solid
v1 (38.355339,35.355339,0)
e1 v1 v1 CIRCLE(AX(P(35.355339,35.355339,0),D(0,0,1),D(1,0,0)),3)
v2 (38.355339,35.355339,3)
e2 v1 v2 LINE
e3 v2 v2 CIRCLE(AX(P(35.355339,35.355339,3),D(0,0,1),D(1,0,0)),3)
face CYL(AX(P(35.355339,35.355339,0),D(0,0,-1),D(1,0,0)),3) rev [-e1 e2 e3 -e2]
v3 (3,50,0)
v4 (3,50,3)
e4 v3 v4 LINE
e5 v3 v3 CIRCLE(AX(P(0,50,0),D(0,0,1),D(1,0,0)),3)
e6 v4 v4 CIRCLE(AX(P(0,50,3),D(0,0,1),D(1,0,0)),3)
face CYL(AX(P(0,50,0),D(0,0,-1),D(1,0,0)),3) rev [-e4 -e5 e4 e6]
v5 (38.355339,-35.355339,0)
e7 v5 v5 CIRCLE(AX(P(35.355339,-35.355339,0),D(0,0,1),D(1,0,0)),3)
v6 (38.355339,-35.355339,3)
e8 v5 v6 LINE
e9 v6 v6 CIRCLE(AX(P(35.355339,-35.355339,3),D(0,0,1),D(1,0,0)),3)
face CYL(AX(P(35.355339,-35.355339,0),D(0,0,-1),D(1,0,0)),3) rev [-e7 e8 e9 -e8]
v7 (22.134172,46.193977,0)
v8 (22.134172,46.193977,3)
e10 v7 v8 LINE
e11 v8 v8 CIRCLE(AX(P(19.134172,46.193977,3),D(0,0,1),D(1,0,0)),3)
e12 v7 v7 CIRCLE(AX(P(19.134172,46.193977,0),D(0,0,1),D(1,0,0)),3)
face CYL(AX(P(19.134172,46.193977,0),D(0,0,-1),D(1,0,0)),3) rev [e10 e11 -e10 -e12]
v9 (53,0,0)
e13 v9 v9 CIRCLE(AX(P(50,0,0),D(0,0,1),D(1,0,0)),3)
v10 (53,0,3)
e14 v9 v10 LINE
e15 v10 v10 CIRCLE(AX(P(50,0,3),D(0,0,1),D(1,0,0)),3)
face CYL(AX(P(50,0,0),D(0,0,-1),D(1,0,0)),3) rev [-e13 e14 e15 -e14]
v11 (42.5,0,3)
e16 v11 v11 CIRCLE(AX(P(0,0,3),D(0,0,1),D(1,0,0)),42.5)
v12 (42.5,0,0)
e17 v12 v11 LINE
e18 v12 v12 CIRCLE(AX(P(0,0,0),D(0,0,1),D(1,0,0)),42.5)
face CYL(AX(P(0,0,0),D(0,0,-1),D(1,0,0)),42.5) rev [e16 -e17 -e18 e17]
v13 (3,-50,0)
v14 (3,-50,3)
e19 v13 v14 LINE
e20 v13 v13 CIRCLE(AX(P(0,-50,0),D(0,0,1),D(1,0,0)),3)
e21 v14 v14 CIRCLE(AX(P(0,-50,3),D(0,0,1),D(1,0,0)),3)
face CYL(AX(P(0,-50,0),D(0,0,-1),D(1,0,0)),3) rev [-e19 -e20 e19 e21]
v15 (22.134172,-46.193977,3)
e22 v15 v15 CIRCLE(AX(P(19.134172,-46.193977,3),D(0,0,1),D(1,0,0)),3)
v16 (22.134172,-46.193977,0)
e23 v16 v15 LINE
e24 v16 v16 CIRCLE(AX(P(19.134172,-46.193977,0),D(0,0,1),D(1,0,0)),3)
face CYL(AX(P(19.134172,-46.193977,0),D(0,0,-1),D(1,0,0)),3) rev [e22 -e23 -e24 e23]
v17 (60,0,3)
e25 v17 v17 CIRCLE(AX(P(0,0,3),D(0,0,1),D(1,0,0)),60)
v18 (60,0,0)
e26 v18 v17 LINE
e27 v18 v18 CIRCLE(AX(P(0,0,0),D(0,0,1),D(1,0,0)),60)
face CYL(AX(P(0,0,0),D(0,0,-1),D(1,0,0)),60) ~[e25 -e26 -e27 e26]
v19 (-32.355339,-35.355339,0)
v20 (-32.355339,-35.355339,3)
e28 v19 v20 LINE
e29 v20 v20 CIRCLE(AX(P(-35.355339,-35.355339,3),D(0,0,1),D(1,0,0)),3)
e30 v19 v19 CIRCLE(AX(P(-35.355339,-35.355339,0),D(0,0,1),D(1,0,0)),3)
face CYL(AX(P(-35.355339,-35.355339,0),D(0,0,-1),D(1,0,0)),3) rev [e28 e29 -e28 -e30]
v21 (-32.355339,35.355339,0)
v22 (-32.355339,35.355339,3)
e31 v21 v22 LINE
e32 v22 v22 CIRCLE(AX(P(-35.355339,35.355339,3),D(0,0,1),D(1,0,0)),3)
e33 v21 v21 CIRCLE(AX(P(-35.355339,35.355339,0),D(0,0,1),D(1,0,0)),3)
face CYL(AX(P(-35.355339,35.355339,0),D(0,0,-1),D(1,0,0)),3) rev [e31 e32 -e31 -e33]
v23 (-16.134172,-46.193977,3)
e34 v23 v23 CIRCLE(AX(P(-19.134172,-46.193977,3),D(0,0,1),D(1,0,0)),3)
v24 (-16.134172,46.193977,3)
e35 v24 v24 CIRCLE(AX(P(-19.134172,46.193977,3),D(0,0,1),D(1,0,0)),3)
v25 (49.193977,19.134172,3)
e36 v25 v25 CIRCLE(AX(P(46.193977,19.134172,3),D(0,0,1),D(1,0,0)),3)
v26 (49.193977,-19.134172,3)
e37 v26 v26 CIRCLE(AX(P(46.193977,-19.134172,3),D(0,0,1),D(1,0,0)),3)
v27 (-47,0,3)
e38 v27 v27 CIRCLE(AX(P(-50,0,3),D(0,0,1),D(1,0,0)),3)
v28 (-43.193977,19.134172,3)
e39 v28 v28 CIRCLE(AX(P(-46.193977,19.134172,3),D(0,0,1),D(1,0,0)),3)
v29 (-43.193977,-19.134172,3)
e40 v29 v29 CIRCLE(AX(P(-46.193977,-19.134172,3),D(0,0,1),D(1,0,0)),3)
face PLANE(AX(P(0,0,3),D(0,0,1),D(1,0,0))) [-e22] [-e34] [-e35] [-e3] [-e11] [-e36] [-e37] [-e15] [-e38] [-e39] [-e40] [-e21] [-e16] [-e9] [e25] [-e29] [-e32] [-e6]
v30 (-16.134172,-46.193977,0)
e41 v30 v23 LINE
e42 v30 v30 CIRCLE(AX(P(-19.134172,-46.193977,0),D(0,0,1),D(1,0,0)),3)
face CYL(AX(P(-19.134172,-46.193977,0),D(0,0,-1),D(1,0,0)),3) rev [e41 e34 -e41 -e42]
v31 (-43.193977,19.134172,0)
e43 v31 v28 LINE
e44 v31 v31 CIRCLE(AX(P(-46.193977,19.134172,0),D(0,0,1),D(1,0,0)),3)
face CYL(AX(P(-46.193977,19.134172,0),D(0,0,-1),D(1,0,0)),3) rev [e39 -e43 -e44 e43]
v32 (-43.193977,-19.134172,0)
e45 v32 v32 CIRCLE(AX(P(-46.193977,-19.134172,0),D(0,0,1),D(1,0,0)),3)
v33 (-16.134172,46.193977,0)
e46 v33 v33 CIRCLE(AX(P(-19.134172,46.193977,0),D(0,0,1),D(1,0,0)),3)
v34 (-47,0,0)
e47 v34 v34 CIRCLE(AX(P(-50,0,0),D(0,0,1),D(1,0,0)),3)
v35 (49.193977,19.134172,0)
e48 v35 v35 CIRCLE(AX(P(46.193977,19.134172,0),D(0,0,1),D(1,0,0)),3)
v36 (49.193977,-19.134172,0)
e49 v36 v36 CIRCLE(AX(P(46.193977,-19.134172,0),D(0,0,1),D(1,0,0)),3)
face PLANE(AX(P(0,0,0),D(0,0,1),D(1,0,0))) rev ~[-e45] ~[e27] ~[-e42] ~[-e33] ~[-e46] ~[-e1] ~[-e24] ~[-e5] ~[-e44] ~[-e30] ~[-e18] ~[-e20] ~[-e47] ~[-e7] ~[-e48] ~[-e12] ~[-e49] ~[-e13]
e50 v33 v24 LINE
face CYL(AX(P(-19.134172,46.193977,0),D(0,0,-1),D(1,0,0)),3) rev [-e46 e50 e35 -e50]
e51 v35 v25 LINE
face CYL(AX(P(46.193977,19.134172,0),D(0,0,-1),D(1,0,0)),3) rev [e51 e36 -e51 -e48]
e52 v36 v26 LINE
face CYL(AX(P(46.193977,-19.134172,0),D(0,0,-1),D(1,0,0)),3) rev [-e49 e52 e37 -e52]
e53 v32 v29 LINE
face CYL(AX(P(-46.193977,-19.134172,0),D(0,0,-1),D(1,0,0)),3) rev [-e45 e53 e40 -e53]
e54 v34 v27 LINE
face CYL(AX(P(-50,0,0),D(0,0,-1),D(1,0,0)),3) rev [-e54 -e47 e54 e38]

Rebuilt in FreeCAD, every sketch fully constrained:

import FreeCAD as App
import Part
import Sketcher

doc = App.newDocument("Part")
body = doc.addObject("PartDesign::Body", "Body")

sketch1 = doc.addObject("Sketcher::SketchObject", "Sketch")
body.addObject(sketch1)
sketch1.AttachmentSupport = (doc.XY_Plane, [""])
sketch1.MapMode = "FlatFace"
sketch1.addGeometry(Part.Circle(App.Vector(0, 0, 0), App.Vector(0, 0, 1), 60), False)
sketch1.addGeometry(Part.Circle(App.Vector(-35.4, -35.4, 0), App.Vector(0, 0, 1), 3), False)
sketch1.addGeometry(Part.Circle(App.Vector(-19.1, -46.2, 0), App.Vector(0, 0, 1), 3), False)
sketch1.addGeometry(Part.Circle(App.Vector(-46.2, -19.1, 0), App.Vector(0, 0, 1), 3), False)
sketch1.addGeometry(Part.Circle(App.Vector(0, -50, 0), App.Vector(0, 0, 1), 3), False)
sketch1.addGeometry(Part.Circle(App.Vector(19.1, -46.2, 0), App.Vector(0, 0, 1), 3), False)
sketch1.addGeometry(Part.Circle(App.Vector(35.4, -35.4, 0), App.Vector(0, 0, 1), 3), False)
sketch1.addGeometry(Part.Circle(App.Vector(46.2, -19.1, 0), App.Vector(0, 0, 1), 3), False)
sketch1.addGeometry(Part.Circle(App.Vector(-50, 0, 0), App.Vector(0, 0, 1), 3), False)
sketch1.addGeometry(Part.Circle(App.Vector(-46.2, 19.1, 0), App.Vector(0, 0, 1), 3), False)
sketch1.addGeometry(Part.Circle(App.Vector(-35.4, 35.4, 0), App.Vector(0, 0, 1), 3), False)
sketch1.addGeometry(Part.Circle(App.Vector(-19.1, 46.2, 0), App.Vector(0, 0, 1), 3), False)
sketch1.addGeometry(Part.Circle(App.Vector(0, 0, 0), App.Vector(0, 0, 1), 42.5), False)
sketch1.addGeometry(Part.Circle(App.Vector(50, 0, 0), App.Vector(0, 0, 1), 3), False)
sketch1.addGeometry(Part.Circle(App.Vector(46.2, 19.1, 0), App.Vector(0, 0, 1), 3), False)
sketch1.addGeometry(Part.Circle(App.Vector(0, 50, 0), App.Vector(0, 0, 1), 3), False)
sketch1.addGeometry(Part.Circle(App.Vector(19.1, 46.2, 0), App.Vector(0, 0, 1), 3), False)
sketch1.addGeometry(Part.Circle(App.Vector(35.4, 35.4, 0), App.Vector(0, 0, 1), 3), False)
sketch1.addConstraint(Sketcher.Constraint("Coincident", 0, 3, -1, 1))
sketch1.addConstraint(Sketcher.Constraint("Coincident", 12, 3, -1, 1))
sketch1.addConstraint(Sketcher.Constraint("Equal", 1, 2))
sketch1.addConstraint(Sketcher.Constraint("Equal", 2, 3))
sketch1.addConstraint(Sketcher.Constraint("Equal", 3, 4))
sketch1.addConstraint(Sketcher.Constraint("Equal", 4, 5))
sketch1.addConstraint(Sketcher.Constraint("Equal", 5, 6))
sketch1.addConstraint(Sketcher.Constraint("Equal", 6, 7))
sketch1.addConstraint(Sketcher.Constraint("Equal", 7, 8))
sketch1.addConstraint(Sketcher.Constraint("Equal", 8, 9))
sketch1.addConstraint(Sketcher.Constraint("Equal", 9, 10))
sketch1.addConstraint(Sketcher.Constraint("Equal", 10, 11))
sketch1.addConstraint(Sketcher.Constraint("Equal", 11, 13))
sketch1.addConstraint(Sketcher.Constraint("Equal", 13, 14))
sketch1.addConstraint(Sketcher.Constraint("Equal", 14, 15))
sketch1.addConstraint(Sketcher.Constraint("Equal", 15, 16))
sketch1.addConstraint(Sketcher.Constraint("Equal", 16, 17))
sketch1.addConstraint(Sketcher.Constraint("Symmetric", 7, 3, 9, 3, -1, 1))
sketch1.addConstraint(Sketcher.Constraint("Symmetric", 6, 3, 10, 3, -1, 1))
sketch1.addConstraint(Sketcher.Constraint("Symmetric", 5, 3, 11, 3, -1, 1))
sketch1.addConstraint(Sketcher.Constraint("Symmetric", 8, 3, 13, 3, -1, 1))
sketch1.addConstraint(Sketcher.Constraint("Symmetric", 3, 3, 14, 3, -1, 1))
sketch1.addConstraint(Sketcher.Constraint("Symmetric", 4, 3, 15, 3, -1, 1))
sketch1.addConstraint(Sketcher.Constraint("Symmetric", 2, 3, 16, 3, -1, 1))
sketch1.addConstraint(Sketcher.Constraint("Symmetric", 1, 3, 17, 3, -1, 1))
sketch1.addConstraint(Sketcher.Constraint("Symmetric", 2, 3, 5, 3, -2))
sketch1.addConstraint(Sketcher.Constraint("Symmetric", 1, 3, 6, 3, -2))
sketch1.addConstraint(Sketcher.Constraint("Symmetric", 3, 3, 7, 3, -2))
sketch1.addConstraint(Sketcher.Constraint("PointOnObject", 4, 3, -2))
sketch1.addConstraint(Sketcher.Constraint("PointOnObject", 8, 3, -1))
sketch1.addConstraint(Sketcher.Constraint("Diameter", 0, 120.0))
sketch1.addConstraint(Sketcher.Constraint("Diameter", 1, 6.0))
sketch1.addConstraint(Sketcher.Constraint("Diameter", 12, 85.0))
sketch1.addConstraint(Sketcher.Constraint("DistanceY", 4, 3, -1, 1, 50.0))
sketch1.addConstraint(Sketcher.Constraint("DistanceX", 8, 3, -1, 1, 50.0))
sketch1.addConstraint(Sketcher.Constraint("DistanceX", 1, 3, -1, 1, 35.355339))
sketch1.addConstraint(Sketcher.Constraint("DistanceY", 1, 3, -1, 1, 35.355339))
sketch1.addConstraint(Sketcher.Constraint("DistanceX", 2, 3, -1, 1, 19.134172))
sketch1.addConstraint(Sketcher.Constraint("DistanceY", 3, 3, -1, 1, 19.134172))
sketch1.addConstraint(Sketcher.Constraint("DistanceX", 3, 3, 5, 3, 65.328149))
sketch1.addConstraint(Sketcher.Constraint("DistanceY", 2, 3, 9, 3, 65.328149))
pad1 = doc.addObject("PartDesign::Pad", "Pad")
body.addObject(pad1)
pad1.Profile = sketch1
pad1.Length = 3

doc.recompute()
